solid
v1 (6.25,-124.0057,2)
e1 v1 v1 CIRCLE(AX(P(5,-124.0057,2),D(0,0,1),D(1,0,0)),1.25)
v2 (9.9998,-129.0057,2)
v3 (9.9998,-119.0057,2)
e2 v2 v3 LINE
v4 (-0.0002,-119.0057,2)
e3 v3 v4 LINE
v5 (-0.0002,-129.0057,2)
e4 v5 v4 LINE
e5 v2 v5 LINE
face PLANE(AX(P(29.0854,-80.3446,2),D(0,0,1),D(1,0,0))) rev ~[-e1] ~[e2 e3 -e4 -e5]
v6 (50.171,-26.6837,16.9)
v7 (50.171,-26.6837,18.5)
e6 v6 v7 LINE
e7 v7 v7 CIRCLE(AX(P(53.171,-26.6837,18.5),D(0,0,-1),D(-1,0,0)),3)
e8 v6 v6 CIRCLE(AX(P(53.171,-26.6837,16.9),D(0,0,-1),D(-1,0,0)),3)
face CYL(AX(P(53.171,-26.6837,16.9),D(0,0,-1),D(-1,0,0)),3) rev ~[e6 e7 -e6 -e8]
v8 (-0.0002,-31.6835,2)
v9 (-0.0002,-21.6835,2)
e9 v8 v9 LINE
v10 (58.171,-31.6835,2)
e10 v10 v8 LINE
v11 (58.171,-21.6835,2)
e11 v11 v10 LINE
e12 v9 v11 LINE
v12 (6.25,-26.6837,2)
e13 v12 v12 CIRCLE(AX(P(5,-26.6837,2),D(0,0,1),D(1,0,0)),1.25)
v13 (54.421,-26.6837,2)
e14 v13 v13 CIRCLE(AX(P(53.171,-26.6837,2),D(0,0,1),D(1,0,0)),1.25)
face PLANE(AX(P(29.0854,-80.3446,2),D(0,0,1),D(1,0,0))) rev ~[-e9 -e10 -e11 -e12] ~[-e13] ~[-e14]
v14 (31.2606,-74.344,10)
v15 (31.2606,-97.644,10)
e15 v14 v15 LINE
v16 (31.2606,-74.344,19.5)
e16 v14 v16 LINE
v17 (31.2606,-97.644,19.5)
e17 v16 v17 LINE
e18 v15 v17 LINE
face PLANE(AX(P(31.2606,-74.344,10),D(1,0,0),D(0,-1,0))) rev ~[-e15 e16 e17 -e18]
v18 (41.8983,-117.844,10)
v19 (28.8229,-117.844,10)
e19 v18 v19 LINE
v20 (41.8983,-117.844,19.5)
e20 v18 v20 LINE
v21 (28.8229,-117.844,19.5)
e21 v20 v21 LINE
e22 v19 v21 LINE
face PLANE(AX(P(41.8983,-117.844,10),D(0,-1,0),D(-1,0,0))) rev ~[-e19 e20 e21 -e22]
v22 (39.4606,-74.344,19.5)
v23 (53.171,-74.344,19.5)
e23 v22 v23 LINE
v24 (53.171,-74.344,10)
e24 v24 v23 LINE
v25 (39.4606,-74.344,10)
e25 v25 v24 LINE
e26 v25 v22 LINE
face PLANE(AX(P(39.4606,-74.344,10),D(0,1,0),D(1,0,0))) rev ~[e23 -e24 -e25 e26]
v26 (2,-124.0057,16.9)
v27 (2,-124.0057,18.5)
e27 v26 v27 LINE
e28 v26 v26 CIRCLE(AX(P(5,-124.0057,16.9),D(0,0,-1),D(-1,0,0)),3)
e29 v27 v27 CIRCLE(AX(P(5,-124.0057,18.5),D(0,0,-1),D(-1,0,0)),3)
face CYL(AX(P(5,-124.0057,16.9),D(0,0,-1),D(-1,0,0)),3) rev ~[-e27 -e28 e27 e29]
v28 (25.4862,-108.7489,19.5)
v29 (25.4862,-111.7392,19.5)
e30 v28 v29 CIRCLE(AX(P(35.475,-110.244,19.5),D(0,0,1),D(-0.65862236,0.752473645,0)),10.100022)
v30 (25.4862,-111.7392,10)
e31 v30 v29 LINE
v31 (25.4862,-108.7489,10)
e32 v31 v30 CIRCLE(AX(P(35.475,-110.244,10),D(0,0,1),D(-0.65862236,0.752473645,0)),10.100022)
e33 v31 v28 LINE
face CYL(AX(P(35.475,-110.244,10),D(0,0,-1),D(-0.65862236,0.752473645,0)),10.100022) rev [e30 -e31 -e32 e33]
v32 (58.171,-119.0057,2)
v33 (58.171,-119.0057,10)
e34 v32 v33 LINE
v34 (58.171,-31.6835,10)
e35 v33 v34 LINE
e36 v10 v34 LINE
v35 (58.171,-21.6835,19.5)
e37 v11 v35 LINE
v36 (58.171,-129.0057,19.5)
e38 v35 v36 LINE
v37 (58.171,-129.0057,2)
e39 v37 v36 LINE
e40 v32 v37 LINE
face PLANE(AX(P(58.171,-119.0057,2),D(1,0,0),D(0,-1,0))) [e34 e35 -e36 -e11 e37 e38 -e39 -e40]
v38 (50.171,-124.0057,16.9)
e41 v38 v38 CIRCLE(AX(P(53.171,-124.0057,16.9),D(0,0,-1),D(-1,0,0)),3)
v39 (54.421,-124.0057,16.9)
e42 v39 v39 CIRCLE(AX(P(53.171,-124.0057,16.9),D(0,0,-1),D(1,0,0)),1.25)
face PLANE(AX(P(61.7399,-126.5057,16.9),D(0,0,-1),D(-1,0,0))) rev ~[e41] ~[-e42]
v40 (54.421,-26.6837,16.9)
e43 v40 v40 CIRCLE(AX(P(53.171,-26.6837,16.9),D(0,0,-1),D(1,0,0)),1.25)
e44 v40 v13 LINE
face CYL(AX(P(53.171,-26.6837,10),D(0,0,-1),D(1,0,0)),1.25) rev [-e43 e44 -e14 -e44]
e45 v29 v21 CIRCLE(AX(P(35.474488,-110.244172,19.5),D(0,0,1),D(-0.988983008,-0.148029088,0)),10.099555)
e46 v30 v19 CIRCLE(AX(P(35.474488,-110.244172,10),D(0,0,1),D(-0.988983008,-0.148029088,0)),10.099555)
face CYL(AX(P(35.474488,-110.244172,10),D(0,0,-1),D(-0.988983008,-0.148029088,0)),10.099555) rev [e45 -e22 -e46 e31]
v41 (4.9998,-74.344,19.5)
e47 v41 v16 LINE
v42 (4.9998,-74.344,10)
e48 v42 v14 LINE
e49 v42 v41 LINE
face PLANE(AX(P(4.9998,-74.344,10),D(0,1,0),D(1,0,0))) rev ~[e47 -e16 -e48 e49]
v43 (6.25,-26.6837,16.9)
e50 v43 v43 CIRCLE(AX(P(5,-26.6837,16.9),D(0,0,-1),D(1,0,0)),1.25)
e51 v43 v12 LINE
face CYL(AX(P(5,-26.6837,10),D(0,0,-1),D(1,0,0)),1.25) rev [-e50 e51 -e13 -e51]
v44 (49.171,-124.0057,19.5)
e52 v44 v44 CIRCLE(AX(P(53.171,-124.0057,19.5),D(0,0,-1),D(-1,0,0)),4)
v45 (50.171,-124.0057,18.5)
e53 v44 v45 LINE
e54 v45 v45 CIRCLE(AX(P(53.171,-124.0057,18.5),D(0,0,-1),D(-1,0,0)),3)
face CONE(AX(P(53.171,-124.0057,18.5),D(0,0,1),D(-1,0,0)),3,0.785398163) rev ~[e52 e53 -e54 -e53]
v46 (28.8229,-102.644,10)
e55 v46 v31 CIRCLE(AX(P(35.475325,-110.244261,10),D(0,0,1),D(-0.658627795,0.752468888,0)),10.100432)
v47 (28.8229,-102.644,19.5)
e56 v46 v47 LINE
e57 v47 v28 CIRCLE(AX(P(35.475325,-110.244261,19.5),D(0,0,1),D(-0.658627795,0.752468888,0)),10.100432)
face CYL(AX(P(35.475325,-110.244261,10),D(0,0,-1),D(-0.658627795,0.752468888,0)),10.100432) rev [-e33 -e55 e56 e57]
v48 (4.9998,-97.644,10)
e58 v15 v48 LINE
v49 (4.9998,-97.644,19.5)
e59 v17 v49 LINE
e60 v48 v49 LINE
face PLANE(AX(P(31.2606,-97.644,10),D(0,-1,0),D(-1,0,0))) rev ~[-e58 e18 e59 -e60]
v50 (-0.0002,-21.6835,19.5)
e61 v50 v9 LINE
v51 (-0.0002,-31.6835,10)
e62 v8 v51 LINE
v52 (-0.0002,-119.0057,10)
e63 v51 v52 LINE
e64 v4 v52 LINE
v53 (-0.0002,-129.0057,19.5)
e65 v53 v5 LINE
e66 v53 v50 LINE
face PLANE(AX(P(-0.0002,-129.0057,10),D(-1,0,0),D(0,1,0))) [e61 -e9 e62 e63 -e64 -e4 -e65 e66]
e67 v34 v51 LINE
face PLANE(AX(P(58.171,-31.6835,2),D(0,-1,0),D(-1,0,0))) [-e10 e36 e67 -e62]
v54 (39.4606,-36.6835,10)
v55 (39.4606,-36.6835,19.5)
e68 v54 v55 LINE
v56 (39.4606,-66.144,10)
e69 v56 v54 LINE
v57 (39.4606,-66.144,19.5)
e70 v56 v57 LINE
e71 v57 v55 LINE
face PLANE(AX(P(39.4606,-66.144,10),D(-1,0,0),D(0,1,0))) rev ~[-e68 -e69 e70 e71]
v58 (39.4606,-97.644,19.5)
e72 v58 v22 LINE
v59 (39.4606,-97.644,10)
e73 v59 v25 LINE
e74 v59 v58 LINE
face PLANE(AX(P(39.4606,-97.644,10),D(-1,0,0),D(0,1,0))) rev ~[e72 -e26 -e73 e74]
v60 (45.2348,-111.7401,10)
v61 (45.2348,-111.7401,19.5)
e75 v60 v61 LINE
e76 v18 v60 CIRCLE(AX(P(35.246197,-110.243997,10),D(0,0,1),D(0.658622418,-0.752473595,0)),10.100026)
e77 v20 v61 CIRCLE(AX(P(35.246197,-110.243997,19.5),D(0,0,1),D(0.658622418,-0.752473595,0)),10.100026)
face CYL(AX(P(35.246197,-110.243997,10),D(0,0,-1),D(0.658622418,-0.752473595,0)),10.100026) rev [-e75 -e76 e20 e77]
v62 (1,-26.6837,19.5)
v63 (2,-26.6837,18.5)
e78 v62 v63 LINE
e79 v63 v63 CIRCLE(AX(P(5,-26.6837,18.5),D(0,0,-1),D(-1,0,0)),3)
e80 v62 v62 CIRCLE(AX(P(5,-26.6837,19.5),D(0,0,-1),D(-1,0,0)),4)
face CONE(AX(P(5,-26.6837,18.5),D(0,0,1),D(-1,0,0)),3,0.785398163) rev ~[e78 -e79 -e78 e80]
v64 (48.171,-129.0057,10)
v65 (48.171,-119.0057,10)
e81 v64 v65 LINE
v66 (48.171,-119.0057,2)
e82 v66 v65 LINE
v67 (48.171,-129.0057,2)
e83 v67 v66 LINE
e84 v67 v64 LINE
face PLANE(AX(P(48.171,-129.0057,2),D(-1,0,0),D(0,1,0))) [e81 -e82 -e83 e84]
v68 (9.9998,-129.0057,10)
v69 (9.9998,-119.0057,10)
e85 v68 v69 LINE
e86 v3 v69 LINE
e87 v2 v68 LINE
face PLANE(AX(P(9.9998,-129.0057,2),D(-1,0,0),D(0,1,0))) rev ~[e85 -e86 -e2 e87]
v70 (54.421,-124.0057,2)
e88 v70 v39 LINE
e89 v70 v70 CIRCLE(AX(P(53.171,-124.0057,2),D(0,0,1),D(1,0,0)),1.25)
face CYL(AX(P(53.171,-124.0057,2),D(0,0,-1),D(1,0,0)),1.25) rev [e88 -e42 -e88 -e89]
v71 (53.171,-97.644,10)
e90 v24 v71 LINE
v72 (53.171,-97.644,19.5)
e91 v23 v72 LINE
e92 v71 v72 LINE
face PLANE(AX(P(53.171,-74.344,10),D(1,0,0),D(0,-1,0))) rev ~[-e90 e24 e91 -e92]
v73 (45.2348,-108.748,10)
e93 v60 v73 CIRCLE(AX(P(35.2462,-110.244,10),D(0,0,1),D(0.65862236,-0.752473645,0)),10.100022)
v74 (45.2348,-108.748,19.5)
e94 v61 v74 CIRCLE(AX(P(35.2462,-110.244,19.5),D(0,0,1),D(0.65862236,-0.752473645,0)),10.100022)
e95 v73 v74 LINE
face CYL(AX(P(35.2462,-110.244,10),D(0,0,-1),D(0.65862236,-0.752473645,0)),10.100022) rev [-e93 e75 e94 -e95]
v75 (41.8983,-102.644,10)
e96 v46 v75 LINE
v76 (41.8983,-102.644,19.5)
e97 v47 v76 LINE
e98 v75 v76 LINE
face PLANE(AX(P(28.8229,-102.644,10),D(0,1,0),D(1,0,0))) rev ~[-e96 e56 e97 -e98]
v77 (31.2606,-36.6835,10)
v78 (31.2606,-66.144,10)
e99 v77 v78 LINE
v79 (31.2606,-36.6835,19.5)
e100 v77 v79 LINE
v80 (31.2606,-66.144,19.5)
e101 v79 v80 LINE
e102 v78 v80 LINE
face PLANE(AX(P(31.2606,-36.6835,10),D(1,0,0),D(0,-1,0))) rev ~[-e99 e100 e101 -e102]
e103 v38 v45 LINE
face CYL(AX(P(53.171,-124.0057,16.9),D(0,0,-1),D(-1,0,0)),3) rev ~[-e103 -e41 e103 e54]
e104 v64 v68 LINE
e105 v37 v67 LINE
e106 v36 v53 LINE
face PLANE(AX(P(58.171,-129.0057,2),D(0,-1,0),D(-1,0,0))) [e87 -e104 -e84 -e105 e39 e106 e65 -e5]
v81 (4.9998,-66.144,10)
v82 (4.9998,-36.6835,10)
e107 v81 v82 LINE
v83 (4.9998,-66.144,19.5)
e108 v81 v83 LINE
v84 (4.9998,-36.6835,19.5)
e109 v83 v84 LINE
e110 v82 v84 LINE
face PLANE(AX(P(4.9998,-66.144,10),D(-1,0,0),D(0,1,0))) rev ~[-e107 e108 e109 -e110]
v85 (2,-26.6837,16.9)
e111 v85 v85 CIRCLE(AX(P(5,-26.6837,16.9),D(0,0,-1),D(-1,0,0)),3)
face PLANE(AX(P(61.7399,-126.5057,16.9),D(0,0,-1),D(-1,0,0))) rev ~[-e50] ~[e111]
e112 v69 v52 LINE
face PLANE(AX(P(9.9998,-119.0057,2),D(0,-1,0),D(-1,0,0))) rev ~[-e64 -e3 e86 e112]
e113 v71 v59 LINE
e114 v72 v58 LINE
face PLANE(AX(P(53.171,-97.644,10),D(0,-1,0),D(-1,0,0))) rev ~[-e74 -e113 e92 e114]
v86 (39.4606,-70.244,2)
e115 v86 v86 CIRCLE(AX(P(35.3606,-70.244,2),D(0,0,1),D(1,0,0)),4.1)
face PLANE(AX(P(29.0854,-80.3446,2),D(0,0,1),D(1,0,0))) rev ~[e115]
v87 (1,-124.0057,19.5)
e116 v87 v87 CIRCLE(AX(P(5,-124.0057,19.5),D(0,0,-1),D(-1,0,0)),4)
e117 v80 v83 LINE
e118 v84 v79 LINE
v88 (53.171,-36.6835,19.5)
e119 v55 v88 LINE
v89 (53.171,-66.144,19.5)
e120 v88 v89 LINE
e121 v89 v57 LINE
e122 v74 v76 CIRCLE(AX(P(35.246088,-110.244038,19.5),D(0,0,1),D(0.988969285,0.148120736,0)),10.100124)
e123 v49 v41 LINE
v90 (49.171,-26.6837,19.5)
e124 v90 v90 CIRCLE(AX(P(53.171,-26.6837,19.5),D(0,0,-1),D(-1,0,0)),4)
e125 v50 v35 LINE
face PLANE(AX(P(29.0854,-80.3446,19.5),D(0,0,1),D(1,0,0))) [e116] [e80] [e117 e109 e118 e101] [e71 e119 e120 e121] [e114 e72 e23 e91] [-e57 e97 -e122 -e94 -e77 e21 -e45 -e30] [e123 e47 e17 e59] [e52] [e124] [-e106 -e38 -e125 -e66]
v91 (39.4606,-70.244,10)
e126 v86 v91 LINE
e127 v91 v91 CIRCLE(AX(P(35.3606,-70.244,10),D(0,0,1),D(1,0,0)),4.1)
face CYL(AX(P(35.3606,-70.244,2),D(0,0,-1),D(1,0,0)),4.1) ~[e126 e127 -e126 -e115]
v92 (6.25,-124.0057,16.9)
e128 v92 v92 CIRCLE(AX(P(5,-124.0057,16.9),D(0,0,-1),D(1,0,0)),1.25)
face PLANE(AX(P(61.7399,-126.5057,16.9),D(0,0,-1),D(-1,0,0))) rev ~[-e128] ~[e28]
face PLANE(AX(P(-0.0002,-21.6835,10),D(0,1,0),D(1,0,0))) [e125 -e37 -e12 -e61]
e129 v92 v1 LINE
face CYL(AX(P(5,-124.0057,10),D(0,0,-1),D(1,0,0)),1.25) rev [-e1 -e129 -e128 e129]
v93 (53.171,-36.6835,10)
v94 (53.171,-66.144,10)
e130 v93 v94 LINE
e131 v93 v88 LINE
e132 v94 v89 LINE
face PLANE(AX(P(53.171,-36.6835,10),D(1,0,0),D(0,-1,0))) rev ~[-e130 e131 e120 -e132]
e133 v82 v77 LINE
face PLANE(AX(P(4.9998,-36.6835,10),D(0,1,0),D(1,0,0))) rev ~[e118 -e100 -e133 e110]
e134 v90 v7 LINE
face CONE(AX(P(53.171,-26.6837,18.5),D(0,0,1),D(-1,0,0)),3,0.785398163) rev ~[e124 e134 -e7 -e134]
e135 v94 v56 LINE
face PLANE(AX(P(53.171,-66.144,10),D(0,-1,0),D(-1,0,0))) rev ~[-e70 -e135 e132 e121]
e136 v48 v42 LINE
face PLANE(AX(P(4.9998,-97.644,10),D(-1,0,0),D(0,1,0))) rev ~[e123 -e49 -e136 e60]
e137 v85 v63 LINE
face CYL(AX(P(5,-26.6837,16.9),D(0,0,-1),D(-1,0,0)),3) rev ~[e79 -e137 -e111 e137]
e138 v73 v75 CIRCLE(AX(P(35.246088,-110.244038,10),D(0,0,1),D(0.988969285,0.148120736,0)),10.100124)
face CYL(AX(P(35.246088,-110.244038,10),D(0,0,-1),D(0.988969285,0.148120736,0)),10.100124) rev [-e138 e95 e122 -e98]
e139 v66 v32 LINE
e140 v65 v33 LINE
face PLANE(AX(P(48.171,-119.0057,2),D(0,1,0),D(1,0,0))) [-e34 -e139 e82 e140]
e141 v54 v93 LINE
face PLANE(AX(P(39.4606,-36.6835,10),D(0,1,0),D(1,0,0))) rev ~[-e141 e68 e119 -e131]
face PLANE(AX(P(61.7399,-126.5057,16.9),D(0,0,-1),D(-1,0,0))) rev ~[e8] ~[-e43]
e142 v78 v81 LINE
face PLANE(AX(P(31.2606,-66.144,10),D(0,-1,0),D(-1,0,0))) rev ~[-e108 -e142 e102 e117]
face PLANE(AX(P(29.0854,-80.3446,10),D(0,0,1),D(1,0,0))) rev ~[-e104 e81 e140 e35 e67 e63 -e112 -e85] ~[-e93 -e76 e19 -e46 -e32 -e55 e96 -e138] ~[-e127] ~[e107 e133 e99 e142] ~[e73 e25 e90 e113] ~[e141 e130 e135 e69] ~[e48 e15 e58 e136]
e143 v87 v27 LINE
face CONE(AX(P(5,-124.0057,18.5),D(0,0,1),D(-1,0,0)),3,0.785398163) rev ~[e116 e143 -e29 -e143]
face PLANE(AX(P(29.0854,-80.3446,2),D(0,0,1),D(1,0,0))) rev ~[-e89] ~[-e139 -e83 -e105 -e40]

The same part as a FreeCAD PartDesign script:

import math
import FreeCAD as App
import Part
import Sketcher

V = App.Vector


def edges_at(feature, points):
    """Names of the edges that pass closest to the given points."""
    edges = feature.Shape.Edges
    near = lambda p: min(range(len(edges)), key=lambda i: edges[i].distToShape(Part.Vertex(*p))[0])
    return sorted({f"Edge{near(p) + 1}" for p in points})

doc = App.newDocument("Part")
body = doc.addObject("PartDesign::Body", "Body")
body.AllowCompound = True

# Sketch on XY plane
sketch1 = body.newObject("Sketcher::SketchObject", "Sketch")
sketch1.AttachmentSupport = (doc.getObject("XY_Plane"), [""])
sketch1.MapMode = "FlatFace"
sketch1.AttachmentOffset = App.Placement(V(0, 0, 2), App.Rotation())
sketch1.addGeometry([
    Part.LineSegment(V(48.171, -129.0057, 0), V(58.171, -129.0057, 0)),  # 0
    Part.LineSegment(V(58.171, -129.0057, 0), V(58.171, -119.0057, 0)),  # 1
    Part.LineSegment(V(58.171, -119.0057, 0), V(48.171, -119.0057, 0)),  # 2
    Part.LineSegment(V(48.171, -119.0057, 0), V(48.171, -129.0057, 0)),  # 3
    Part.Circle(V(53.171, -124.0057, 0), V(0, 0, 1), 1.25),  # 4
    Part.LineSegment(V(-0.0002, -129.0057, 0), V(9.9998, -129.0057, 0)),  # 5
    Part.LineSegment(V(9.9998, -129.0057, 0), V(9.9998, -119.0057, 0)),  # 6
    Part.LineSegment(V(9.9998, -119.0057, 0), V(-0.0002, -119.0057, 0)),  # 7
    Part.LineSegment(V(-0.0002, -119.0057, 0), V(-0.0002, -129.0057, 0)),  # 8
    Part.Circle(V(5, -124.0057, 0), V(0, 0, 1), 1.25),  # 9
    Part.LineSegment(V(-0.0002, -31.6835, 0), V(58.171, -31.6835, 0)),  # 10
    Part.LineSegment(V(58.171, -31.6835, 0), V(58.171, -21.6835, 0)),  # 11
    Part.LineSegment(V(58.171, -21.6835, 0), V(-0.0002, -21.6835, 0)),  # 12
    Part.LineSegment(V(-0.0002, -21.6835, 0), V(-0.0002, -31.6835, 0)),  # 13
    Part.Circle(V(5, -26.6837, 0), V(0, 0, 1), 1.25),  # 14
    Part.Circle(V(53.171, -26.6837, 0), V(0, 0, 1), 1.25),  # 15
    Part.Circle(V(35.3606, -70.244, 0), V(0, 0, 1), 4.1),  # 16
], False)
sketch1.addConstraint([
    Sketcher.Constraint("Coincident", 0, 2, 1, 1),
    Sketcher.Constraint("Coincident", 1, 2, 2, 1),
    Sketcher.Constraint("Coincident", 2, 2, 3, 1),
    Sketcher.Constraint("Coincident", 3, 2, 0, 1),
    Sketcher.Constraint("Coincident", 5, 2, 6, 1),
    Sketcher.Constraint("Coincident", 6, 2, 7, 1),
    Sketcher.Constraint("Coincident", 7, 2, 8, 1),
    Sketcher.Constraint("Coincident", 8, 2, 5, 1),
    Sketcher.Constraint("Coincident", 10, 2, 11, 1),
    Sketcher.Constraint("Coincident", 11, 2, 12, 1),
    Sketcher.Constraint("Coincident", 12, 2, 13, 1),
    Sketcher.Constraint("Coincident", 13, 2, 10, 1),
    Sketcher.Constraint("Horizontal", 0),
    Sketcher.Constraint("Vertical", 1),
    Sketcher.Constraint("Horizontal", 2),
    Sketcher.Constraint("Vertical", 3),
    Sketcher.Constraint("Horizontal", 5),
    Sketcher.Constraint("Vertical", 6),
    Sketcher.Constraint("Horizontal", 7),
    Sketcher.Constraint("Vertical", 8),
    Sketcher.Constraint("Horizontal", 10),
    Sketcher.Constraint("Vertical", 11),
    Sketcher.Constraint("Horizontal", 12),
    Sketcher.Constraint("Vertical", 13),
    Sketcher.Constraint("Equal", 4, 9),
    Sketcher.Constraint("Equal", 9, 14),
    Sketcher.Constraint("Equal", 14, 15),
    Sketcher.Constraint("Horizontal", 4, 3, 9, 3),
    Sketcher.Constraint("Horizontal", 14, 3, 15, 3),
    Sketcher.Constraint("Horizontal", 3, 2, 5, 2),
    Sketcher.Constraint("Horizontal", 2, 2, 6, 2),
    Sketcher.Constraint("Vertical", 9, 3, 14, 3),
    Sketcher.Constraint("Vertical", 4, 3, 15, 3),
    Sketcher.Constraint("Vertical", 1, 2, 10, 2),
    Sketcher.Constraint("Vertical", 8, 2, 12, 2),
    Sketcher.Constraint("Equal", 2, 5),
    Sketcher.Constraint("Equal", 7, 1),
    Sketcher.Constraint("Equal", 8, 11),
    Sketcher.Constraint("Diameter", 4, 2.5),
    Sketcher.Constraint("DistanceX", 0, 1, 0, 2, 10.0),
    Sketcher.Constraint("Diameter", 16, 8.2),
    Sketcher.Constraint("DistanceX", -1, 1, 9, 3, 5.0),
    Sketcher.Constraint("DistanceX", -1, 1, 2, 2, 48.171),
    Sketcher.Constraint("DistanceX", 9, 3, 4, 3, 48.171),
    Sketcher.Constraint("DistanceY", 9, 3, 14, 3, 97.322),
    Sketcher.Constraint("DistanceY", 0, 2, 4, 3, 5.0),
    Sketcher.Constraint("DistanceX", -1, 1, 5, 2, 9.9998),
    Sketcher.Constraint("DistanceY", 1, 2, 11, 2, 97.3222),
    Sketcher.Constraint("DistanceY", 16, 3, -1, 1, 70.244),
    Sketcher.Constraint("DistanceY", 4, 3, -1, 1, 124.0057),
    Sketcher.Constraint("DistanceX", -1, 1, 16, 3, 35.3606),
])
pad1 = body.newObject("PartDesign::Pad", "Pad")
pad1.Profile = sketch1
pad1.Length = 8

# Sketch on XY plane
sketch2 = body.newObject("Sketcher::SketchObject", "Sketch001")
sketch2.AttachmentSupport = (doc.getObject("XY_Plane"), [""])
sketch2.MapMode = "FlatFace"
sketch2.AttachmentOffset = App.Placement(V(0, 0, 10), App.Rotation())
sketch2.addGeometry([
    Part.LineSegment(V(-0.0002, -129.0057, 0), V(58.171, -129.0057, 0)),  # 0
    Part.LineSegment(V(58.171, -129.0057, 0), V(58.171, -21.6835, 0)),  # 1
    Part.LineSegment(V(58.171, -21.6835, 0), V(-0.0002, -21.6835, 0)),  # 2
    Part.LineSegment(V(-0.0002, -21.6835, 0), V(-0.0002, -129.0057, 0)),  # 3
    Part.Circle(V(5, -124.0057, 0), V(0, 0, 1), 1.25),  # 4
    Part.ArcOfCircle(Part.Circle(V(35.475, -110.244, 0), V(0, 0, 1), 10.100022), math.radians(-171.486738), math.radians(-131.194891)),  # 5
    Part.ArcOfCircle(Part.Circle(V(35.475, -110.244, 0), V(0, 0, 1), 10.100022), math.radians(171.487299), math.radians(188.513262)),  # 6
    Part.ArcOfCircle(Part.Circle(V(35.475, -110.244, 0), V(0, 0, 1), 10.100087), math.radians(131.194891), math.radians(171.487299)),  # 7
    Part.LineSegment(V(28.8229, -102.644, 0), V(41.8983, -102.644, 0)),  # 8
    Part.ArcOfCircle(Part.Circle(V(35.2462, -110.244, 0), V(0, 0, 1), 10.100022), math.radians(8.517919), math.radians(48.805109)),  # 9
    Part.ArcOfCircle(Part.Circle(V(35.2462, -110.244, 0), V(0, 0, 1), 10.100022), math.radians(-8.51848), math.radians(8.517919)),  # 10
    Part.ArcOfCircle(Part.Circle(V(35.2462, -110.244, 0), V(0, 0, 1), 10.100022), math.radians(-48.805109), math.radians(-8.51848)),  # 11
    Part.LineSegment(V(41.8983, -117.844, 0), V(28.8229, -117.844, 0)),  # 12
    Part.Circle(V(53.171, -124.0057, 0), V(0, 0, 1), 1.25),  # 13
    Part.LineSegment(V(53.171, -74.344, 0), V(53.171, -97.644, 0)),  # 14
    Part.LineSegment(V(53.171, -97.644, 0), V(39.4606, -97.644, 0)),  # 15
    Part.LineSegment(V(39.4606, -97.644, 0), V(39.4606, -74.344, 0)),  # 16
    Part.LineSegment(V(39.4606, -74.344, 0), V(53.171, -74.344, 0)),  # 17
    Part.LineSegment(V(53.171, -36.6835, 0), V(53.171, -66.144, 0)),  # 18
    Part.LineSegment(V(53.171, -66.144, 0), V(39.4606, -66.144, 0)),  # 19
    Part.LineSegment(V(39.4606, -66.144, 0), V(39.4606, -36.6835, 0)),  # 20
    Part.LineSegment(V(39.4606, -36.6835, 0), V(53.171, -36.6835, 0)),  # 21
    Part.LineSegment(V(4.9998, -36.6835, 0), V(31.2606, -36.6835, 0)),  # 22
    Part.LineSegment(V(31.2606, -36.6835, 0), V(31.2606, -66.144, 0)),  # 23
    Part.LineSegment(V(31.2606, -66.144, 0), V(4.9998, -66.144, 0)),  # 24
    Part.LineSegment(V(4.9998, -66.144, 0), V(4.9998, -36.6835, 0)),  # 25
    Part.LineSegment(V(4.9998, -97.644, 0), V(4.9998, -74.344, 0)),  # 26
    Part.LineSegment(V(4.9998, -74.344, 0), V(31.2606, -74.344, 0)),  # 27
    Part.LineSegment(V(31.2606, -74.344, 0), V(31.2606, -97.644, 0)),  # 28
    Part.LineSegment(V(31.2606, -97.644, 0), V(4.9998, -97.644, 0)),  # 29
    Part.Circle(V(53.171, -26.6837, 0), V(0, 0, 1), 1.25),  # 30
    Part.Circle(V(5, -26.6837, 0), V(0, 0, 1), 1.25),  # 31
], False)
sketch2.addConstraint([
    Sketcher.Constraint("Coincident", 0, 2, 1, 1),
    Sketcher.Constraint("Coincident", 1, 2, 2, 1),
    Sketcher.Constraint("Coincident", 2, 2, 3, 1),
    Sketcher.Constraint("Coincident", 3, 2, 0, 1),
    Sketcher.Constraint("Tangent", 5, 1, 6, 2),
    Sketcher.Constraint("Tangent", 6, 1, 7, 2),
    Sketcher.Constraint("Coincident", 7, 1, 8, 1),
    Sketcher.Constraint("Coincident", 8, 2, 9, 2),
    Sketcher.Constraint("Tangent", 9, 1, 10, 2),
    Sketcher.Constraint("Tangent", 10, 1, 11, 2),
    Sketcher.Constraint("Coincident", 11, 1, 12, 1),
    Sketcher.Constraint("Coincident", 12, 2, 5, 2),
    Sketcher.Constraint("Coincident", 14, 2, 15, 1),
    Sketcher.Constraint("Coincident", 15, 2, 16, 1),
    Sketcher.Constraint("Coincident", 16, 2, 17, 1),
    Sketcher.Constraint("Coincident", 17, 2, 14, 1),
    Sketcher.Constraint("Coincident", 18, 2, 19, 1),
    Sketcher.Constraint("Coincident", 19, 2, 20, 1),
    Sketcher.Constraint("Coincident", 20, 2, 21, 1),
    Sketcher.Constraint("Coincident", 21, 2, 18, 1),
    Sketcher.Constraint("Coincident", 22, 2, 23, 1),
    Sketcher.Constraint("Coincident", 23, 2, 24, 1),
    Sketcher.Constraint("Coincident", 24, 2, 25, 1),
    Sketcher.Constraint("Coincident", 25, 2, 22, 1),
    Sketcher.Constraint("Coincident", 26, 2, 27, 1),
    Sketcher.Constraint("Coincident", 27, 2, 28, 1),
    Sketcher.Constraint("Coincident", 28, 2, 29, 1),
    Sketcher.Constraint("Coincident", 29, 2, 26, 1),
    Sketcher.Constraint("Horizontal", 0),
    Sketcher.Constraint("Vertical", 1),
    Sketcher.Constraint("Horizontal", 2),
    Sketcher.Constraint("Vertical", 3),
    Sketcher.Constraint("Horizontal", 8),
    Sketcher.Constraint("Horizontal", 12),
    Sketcher.Constraint("Vertical", 14),
    Sketcher.Constraint("Horizontal", 15),
    Sketcher.Constraint("Vertical", 16),
    Sketcher.Constraint("Horizontal", 17),
    Sketcher.Constraint("Vertical", 18),
    Sketcher.Constraint("Horizontal", 19),
    Sketcher.Constraint("Vertical", 20),
    Sketcher.Constraint("Horizontal", 21),
    Sketcher.Constraint("Horizontal", 22),
    Sketcher.Constraint("Vertical", 23),
    Sketcher.Constraint("Horizontal", 24),
    Sketcher.Constraint("Vertical", 25),
    Sketcher.Constraint("Vertical", 26),
    Sketcher.Constraint("Horizontal", 27),
    Sketcher.Constraint("Vertical", 28),
    Sketcher.Constraint("Horizontal", 29),
    Sketcher.Constraint("Coincident", 7, 3, 5, 3),
    Sketcher.Constraint("Coincident", 11, 3, 9, 3),
    Sketcher.Constraint("Equal", 7, 9),
    Sketcher.Constraint("Equal", 4, 13),
    Sketcher.Constraint("Equal", 13, 30),
    Sketcher.Constraint("Equal", 30, 31),
    Sketcher.Constraint("Horizontal", 7, 3, 9, 3),
    Sketcher.Constraint("Horizontal", 4, 3, 13, 3),
    Sketcher.Constraint("Horizontal", 30, 3, 31, 3),
    Sketcher.Constraint("Horizontal", 21, 2, 22, 2),
    Sketcher.Constraint("Horizontal", 19, 2, 23, 2),
    Sketcher.Constraint("Horizontal", 17, 2, 26, 2),
    Sketcher.Constraint("Horizontal", 15, 2, 28, 2),
    Sketcher.Constraint("Vertical", 13, 3, 30, 3),
    Sketcher.Constraint("Vertical", 4, 3, 31, 3),
    Sketcher.Constraint("Vertical", 5, 1, 6, 1),
    Sketcher.Constraint("Vertical", 9, 1, 10, 1),
    Sketcher.Constraint("Vertical", 8, 2, 11, 1),
    Sketcher.Constraint("Vertical", 30, 3, 14, 2),
    Sketcher.Constraint("Vertical", 17, 2, 18, 2),
    Sketcher.Constraint("Vertical", 16, 2, 19, 2),
    Sketcher.Constraint("Vertical", 25, 2, 26, 2),
    Sketcher.Constraint("Vertical", 23, 2, 27, 2),
    Sketcher.Constraint("DistanceX", -1, 1, 4, 3, 5.0),
    Sketcher.Constraint("DistanceX", 13, 3, 0, 2, 5.0),
    Sketcher.Constraint("DistanceY", 0, 2, 13, 3, 5.0),
    Sketcher.Constraint("DistanceY", 8, 2, 14, 2, 5.0),
    Sketcher.Constraint("DistanceX", 2, 2, 25, 2, 5.0),
    Sketcher.Constraint("Diameter", 4, 2.5),
    Sketcher.Constraint("Radius", 5, 10.1),
    Sketcher.Constraint("DistanceY", 14, 2, 14, 1, 23.3),
    Sketcher.Constraint("DistanceY", 20, 2, 1, 2, 15.0),
    Sketcher.Constraint("DistanceX", -1, 1, 24, 2, 4.9998),
    Sketcher.Constraint("DistanceY", 30, 3, 1, 2, 5.0002),
    Sketcher.Constraint("DistanceY", 9, 3, 7, 1, 7.6),
    Sketcher.Constraint("DistanceY", 17, 2, 18, 2, 8.2),
    Sketcher.Constraint("DistanceX", 22, 2, 20, 2, 8.2),
    Sketcher.Constraint("DistanceY", 10, 1, -1, 1, 111.74),
    Sketcher.Constraint("DistanceX", 5, 1, 9, 3, 9.76),
    Sketcher.Constraint("DistanceX", 0, 1, 0, 2, 58.1712),
    Sketcher.Constraint("DistanceX", 8, 1, 8, 2, 13.0754),
    Sketcher.Constraint("DistanceX", 15, 2, 15, 1, 13.7104),
    Sketcher.Constraint("DistanceY", 1, 1, 1, 2, 107.3222),
    Sketcher.Constraint("DistanceY", 18, 2, 18, 1, 29.4605),
    Sketcher.Constraint("DistanceX", -1, 1, 5, 3, 35.475),
    Sketcher.Constraint("DistanceY", 5, 3, -1, 1, 110.244),
])
pad2 = body.newObject("PartDesign::Pad", "Pad001")
pad2.Profile = sketch2
pad2.Length = 9.5

# Sketch on XY plane
sketch3 = body.newObject("Sketcher::SketchObject", "Sketch002")
sketch3.AttachmentSupport = (doc.getObject("XY_Plane"), [""])
sketch3.MapMode = "FlatFace"
sketch3.AttachmentOffset = App.Placement(V(0, 0, 16.9), App.Rotation())
sketch3.addGeometry([
    Part.Circle(V(53.171, -124.0057, 0), V(0, 0, 1), 3),
    Part.Circle(V(5, -124.0057, 0), V(0, 0, 1), 3),
    Part.Circle(V(53.171, -26.6837, 0), V(0, 0, 1), 3),
    Part.Circle(V(5, -26.6837, 0), V(0, 0, 1), 3),
], False)
sketch3.addConstraint([
    Sketcher.Constraint("Equal", 0, 1),
    Sketcher.Constraint("Equal", 1, 2),
    Sketcher.Constraint("Equal", 2, 3),
    Sketcher.Constraint("Horizontal", 0, 3, 1, 3),
    Sketcher.Constraint("Horizontal", 2, 3, 3, 3),
    Sketcher.Constraint("Vertical", 0, 3, 2, 3),
    Sketcher.Constraint("Vertical", 1, 3, 3, 3),
    Sketcher.Constraint("Diameter", 0, 6.0),
    Sketcher.Constraint("DistanceX", -1, 1, 1, 3, 5.0),
    Sketcher.Constraint("DistanceX", 1, 3, 0, 3, 48.171),
    Sketcher.Constraint("DistanceY", 0, 3, 2, 3, 97.322),
    Sketcher.Constraint("DistanceY", 0, 3, -1, 1, 124.0057),
])
pocket1 = body.newObject("PartDesign::Pocket", "Pocket")
pocket1.Profile = sketch3
pocket1.Length = 26.25
pocket1.Reversed = True
doc.recompute()

chamfer = body.newObject("PartDesign::Chamfer", "Chamfer")
chamfer.Base = (pocket1, edges_at(pocket1, [
    (56.171, -124.006, 19.5),
    (8, -124.006, 19.5),
    (56.171, -26.684, 19.5),
    (8, -26.684, 19.5),
]))
chamfer.Size = 1

doc.recompute()
